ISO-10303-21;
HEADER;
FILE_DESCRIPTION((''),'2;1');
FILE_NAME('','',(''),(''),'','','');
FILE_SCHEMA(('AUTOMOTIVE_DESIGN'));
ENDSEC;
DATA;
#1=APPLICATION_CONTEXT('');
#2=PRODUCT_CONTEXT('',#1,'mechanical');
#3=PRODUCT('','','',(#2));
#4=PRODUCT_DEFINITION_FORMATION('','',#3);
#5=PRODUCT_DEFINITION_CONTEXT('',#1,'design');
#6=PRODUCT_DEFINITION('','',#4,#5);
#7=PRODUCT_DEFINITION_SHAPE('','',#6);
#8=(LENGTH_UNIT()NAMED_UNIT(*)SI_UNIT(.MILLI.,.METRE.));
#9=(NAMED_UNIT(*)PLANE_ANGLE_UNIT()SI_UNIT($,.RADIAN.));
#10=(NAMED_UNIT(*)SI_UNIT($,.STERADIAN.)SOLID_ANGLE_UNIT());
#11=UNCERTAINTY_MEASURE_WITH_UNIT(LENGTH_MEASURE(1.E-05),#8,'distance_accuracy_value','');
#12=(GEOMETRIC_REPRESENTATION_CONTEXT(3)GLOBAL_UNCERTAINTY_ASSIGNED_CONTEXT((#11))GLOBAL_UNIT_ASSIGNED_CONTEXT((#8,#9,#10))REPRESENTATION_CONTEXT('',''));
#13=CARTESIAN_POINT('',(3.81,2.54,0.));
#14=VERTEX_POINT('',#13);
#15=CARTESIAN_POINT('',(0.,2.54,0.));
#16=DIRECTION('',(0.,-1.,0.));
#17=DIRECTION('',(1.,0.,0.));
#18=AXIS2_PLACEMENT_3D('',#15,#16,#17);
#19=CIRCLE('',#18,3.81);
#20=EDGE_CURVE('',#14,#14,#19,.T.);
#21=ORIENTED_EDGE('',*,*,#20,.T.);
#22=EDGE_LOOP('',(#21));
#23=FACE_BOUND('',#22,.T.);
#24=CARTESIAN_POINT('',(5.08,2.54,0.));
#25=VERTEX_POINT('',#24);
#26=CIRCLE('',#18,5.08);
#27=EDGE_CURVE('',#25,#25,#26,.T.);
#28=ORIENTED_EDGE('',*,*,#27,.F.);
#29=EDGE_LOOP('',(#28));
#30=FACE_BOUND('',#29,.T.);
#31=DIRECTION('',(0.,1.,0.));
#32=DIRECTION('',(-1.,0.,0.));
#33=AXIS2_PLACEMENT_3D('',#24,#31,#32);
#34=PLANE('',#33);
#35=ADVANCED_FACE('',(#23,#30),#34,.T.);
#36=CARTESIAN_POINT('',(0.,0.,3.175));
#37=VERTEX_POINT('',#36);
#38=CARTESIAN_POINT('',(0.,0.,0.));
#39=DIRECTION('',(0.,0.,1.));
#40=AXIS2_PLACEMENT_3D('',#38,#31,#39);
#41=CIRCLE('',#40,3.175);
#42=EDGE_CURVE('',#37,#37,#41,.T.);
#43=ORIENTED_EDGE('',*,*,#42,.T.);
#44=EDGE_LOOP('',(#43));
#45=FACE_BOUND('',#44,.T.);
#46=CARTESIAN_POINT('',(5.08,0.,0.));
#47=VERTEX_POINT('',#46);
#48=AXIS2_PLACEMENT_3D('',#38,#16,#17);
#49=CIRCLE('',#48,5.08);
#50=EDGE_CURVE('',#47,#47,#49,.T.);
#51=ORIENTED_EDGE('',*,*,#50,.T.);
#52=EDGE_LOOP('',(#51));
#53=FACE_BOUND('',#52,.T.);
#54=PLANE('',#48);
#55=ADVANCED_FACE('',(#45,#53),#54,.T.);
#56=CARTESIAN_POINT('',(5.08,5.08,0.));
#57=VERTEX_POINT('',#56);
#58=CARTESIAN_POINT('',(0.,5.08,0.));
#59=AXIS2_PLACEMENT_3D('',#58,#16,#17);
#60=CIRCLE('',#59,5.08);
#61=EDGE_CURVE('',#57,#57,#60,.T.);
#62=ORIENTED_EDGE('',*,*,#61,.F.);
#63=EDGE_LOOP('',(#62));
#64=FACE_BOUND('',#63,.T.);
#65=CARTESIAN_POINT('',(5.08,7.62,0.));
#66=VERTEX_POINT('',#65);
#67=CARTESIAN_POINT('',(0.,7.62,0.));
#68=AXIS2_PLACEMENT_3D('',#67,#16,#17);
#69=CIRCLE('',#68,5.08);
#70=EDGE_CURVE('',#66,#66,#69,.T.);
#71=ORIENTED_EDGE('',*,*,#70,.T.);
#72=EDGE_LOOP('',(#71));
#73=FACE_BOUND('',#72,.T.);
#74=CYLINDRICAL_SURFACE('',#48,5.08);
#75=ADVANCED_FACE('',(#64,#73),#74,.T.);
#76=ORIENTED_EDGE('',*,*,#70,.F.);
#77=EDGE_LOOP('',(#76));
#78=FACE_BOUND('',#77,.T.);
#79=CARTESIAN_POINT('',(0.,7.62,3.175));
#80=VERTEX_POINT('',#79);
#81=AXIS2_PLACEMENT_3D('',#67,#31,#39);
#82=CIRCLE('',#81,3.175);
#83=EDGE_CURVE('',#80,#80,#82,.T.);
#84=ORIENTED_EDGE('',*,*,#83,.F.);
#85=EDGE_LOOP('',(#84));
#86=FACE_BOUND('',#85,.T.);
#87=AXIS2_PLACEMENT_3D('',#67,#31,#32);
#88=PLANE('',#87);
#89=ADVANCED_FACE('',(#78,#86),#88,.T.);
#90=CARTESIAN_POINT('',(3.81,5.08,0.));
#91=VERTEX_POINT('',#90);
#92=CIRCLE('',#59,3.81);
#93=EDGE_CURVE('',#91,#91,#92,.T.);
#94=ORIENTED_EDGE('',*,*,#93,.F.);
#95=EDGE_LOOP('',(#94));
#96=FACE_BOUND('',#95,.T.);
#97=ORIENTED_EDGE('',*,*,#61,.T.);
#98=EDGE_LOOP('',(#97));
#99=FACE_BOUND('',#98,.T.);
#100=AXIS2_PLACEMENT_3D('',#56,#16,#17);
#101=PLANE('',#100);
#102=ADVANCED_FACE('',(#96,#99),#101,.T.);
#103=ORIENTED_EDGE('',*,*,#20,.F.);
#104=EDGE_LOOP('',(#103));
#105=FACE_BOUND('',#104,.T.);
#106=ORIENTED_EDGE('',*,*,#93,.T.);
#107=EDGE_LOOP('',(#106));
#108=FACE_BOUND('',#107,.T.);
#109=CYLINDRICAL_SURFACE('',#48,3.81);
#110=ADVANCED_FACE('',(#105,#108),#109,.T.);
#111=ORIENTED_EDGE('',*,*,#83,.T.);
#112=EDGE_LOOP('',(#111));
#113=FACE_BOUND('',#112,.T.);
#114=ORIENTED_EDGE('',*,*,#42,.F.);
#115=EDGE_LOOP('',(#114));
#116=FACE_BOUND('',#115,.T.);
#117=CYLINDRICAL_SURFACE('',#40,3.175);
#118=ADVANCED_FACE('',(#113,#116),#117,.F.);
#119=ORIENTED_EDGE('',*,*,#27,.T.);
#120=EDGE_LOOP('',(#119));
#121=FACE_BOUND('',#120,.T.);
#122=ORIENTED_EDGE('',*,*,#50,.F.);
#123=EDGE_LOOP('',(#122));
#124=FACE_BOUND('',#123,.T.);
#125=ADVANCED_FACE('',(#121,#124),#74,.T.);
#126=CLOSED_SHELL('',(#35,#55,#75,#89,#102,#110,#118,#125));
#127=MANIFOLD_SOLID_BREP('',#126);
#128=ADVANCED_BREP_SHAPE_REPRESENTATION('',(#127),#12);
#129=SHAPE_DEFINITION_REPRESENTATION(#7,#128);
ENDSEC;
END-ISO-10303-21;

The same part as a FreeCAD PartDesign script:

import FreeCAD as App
import Part
import Sketcher
from FreeCAD import Vector
Q = App.Units.Quantity

doc = App.newDocument("Part")
params = doc.addObject("Spreadsheet::Sheet", "Params")
for row, (alias, value) in enumerate([
    ("sketch1_width", "0.2 in"),
    ("sketch1_height", "0.1 in"),
    ("sketch1_width2", "0.05 in"),
    ("revolution_angle", "360 deg"),
    ("sketch2_diameter", "0.25 in"),
], start=1):
    params.set(f"A{row}", alias)
    params.set(f"B{row}", "=" + value)
    params.setAlias(f"B{row}", alias)

body = doc.addObject("PartDesign::Body", "Body")

# Sketch on XY plane
sketch1 = doc.addObject("Sketcher::SketchObject", "Sketch")
body.addObject(sketch1)
sketch1.AttachmentSupport = (doc.XY_Plane, [""])
sketch1.MapMode = "FlatFace"
sketch1.addGeometry([
    Part.LineSegment(Vector(0, 0, 0), Vector(5.1, 0, 0)),  # 0
    Part.LineSegment(Vector(5.1, 0, 0), Vector(5.1, 2.5, 0)),  # 1
    Part.LineSegment(Vector(5.1, 2.5, 0), Vector(3.8, 2.5, 0)),  # 2
    Part.LineSegment(Vector(3.8, 2.5, 0), Vector(3.8, 5.1, 0)),  # 3
    Part.LineSegment(Vector(3.8, 5.1, 0), Vector(5.1, 5.1, 0)),  # 4
    Part.LineSegment(Vector(5.1, 5.1, 0), Vector(5.1, 7.6, 0)),  # 5
    Part.LineSegment(Vector(5.1, 7.6, 0), Vector(0, 7.6, 0)),  # 6
    Part.LineSegment(Vector(0, 7.6, 0), Vector(0, 0, 0)),  # 7
], False)
sketch1.addConstraint([
    Sketcher.Constraint("Coincident", 0, 2, 1, 1),
    Sketcher.Constraint("Coincident", 1, 2, 2, 1),
    Sketcher.Constraint("Coincident", 2, 2, 3, 1),
    Sketcher.Constraint("Coincident", 3, 2, 4, 1),
    Sketcher.Constraint("Coincident", 4, 2, 5, 1),
    Sketcher.Constraint("Coincident", 5, 2, 6, 1),
    Sketcher.Constraint("Coincident", 6, 2, 7, 1),
    Sketcher.Constraint("Coincident", 7, 2, 0, 1),
    Sketcher.Constraint("Horizontal", 0),
    Sketcher.Constraint("Vertical", 1),
    Sketcher.Constraint("Horizontal", 2),
    Sketcher.Constraint("Vertical", 3),
    Sketcher.Constraint("Horizontal", 4),
    Sketcher.Constraint("Vertical", 5),
    Sketcher.Constraint("Horizontal", 6),
    Sketcher.Constraint("Vertical", 7),
    Sketcher.Constraint("Coincident", 7, 2, -1, 1),
    Sketcher.Constraint("Vertical", 1, 2, 4, 2),
    Sketcher.Constraint("Equal", 1, 3),
    Sketcher.Constraint("Equal", 3, 5),
    Sketcher.Constraint("DistanceX", 0, 1, 0, 2, Q("0.2 in")),
    Sketcher.Constraint("DistanceY", 1, 1, 1, 2, Q("0.1 in")),
    Sketcher.Constraint("DistanceX", 2, 2, 2, 1, Q("0.05 in")),
])
sketch1.setExpression("Constraints[20]", "Params.sketch1_width")
sketch1.setExpression("Constraints[21]", "Params.sketch1_height")
sketch1.setExpression("Constraints[22]", "Params.sketch1_width2")
revolution = doc.addObject("PartDesign::Revolution", "Revolution")
body.addObject(revolution)
revolution.Profile = sketch1
revolution.ReferenceAxis = (sketch1, ["V_Axis"])
revolution.setExpression("Angle", "Params.revolution_angle")

# Sketch on XZ plane
sketch2 = doc.addObject("Sketcher::SketchObject", "Sketch001")
body.addObject(sketch2)
sketch2.AttachmentSupport = (doc.XZ_Plane, [""])
sketch2.MapMode = "FlatFace"
sketch2.AttachmentOffset = App.Placement(Vector(0, 0, -0.3 * 25.4), App.Rotation())
sketch2.addGeometry(Part.Circle(Vector(0, 0, 0), Vector(0, 0, 1), 3.2), False)
sketch2.addConstraint([
    Sketcher.Constraint("Coincident", 0, 3, -1, 1),
    Sketcher.Constraint("Diameter", 0, Q("0.25 in")),
])
sketch2.setExpression("Constraints[1]", "Params.sketch2_diameter")
pocket1 = doc.addObject("PartDesign::Pocket", "Pocket")
body.addObject(pocket1)
pocket1.Profile = sketch2
pocket1.Type = "ThroughAll"
pocket1.Reversed = True

doc.recompute()
